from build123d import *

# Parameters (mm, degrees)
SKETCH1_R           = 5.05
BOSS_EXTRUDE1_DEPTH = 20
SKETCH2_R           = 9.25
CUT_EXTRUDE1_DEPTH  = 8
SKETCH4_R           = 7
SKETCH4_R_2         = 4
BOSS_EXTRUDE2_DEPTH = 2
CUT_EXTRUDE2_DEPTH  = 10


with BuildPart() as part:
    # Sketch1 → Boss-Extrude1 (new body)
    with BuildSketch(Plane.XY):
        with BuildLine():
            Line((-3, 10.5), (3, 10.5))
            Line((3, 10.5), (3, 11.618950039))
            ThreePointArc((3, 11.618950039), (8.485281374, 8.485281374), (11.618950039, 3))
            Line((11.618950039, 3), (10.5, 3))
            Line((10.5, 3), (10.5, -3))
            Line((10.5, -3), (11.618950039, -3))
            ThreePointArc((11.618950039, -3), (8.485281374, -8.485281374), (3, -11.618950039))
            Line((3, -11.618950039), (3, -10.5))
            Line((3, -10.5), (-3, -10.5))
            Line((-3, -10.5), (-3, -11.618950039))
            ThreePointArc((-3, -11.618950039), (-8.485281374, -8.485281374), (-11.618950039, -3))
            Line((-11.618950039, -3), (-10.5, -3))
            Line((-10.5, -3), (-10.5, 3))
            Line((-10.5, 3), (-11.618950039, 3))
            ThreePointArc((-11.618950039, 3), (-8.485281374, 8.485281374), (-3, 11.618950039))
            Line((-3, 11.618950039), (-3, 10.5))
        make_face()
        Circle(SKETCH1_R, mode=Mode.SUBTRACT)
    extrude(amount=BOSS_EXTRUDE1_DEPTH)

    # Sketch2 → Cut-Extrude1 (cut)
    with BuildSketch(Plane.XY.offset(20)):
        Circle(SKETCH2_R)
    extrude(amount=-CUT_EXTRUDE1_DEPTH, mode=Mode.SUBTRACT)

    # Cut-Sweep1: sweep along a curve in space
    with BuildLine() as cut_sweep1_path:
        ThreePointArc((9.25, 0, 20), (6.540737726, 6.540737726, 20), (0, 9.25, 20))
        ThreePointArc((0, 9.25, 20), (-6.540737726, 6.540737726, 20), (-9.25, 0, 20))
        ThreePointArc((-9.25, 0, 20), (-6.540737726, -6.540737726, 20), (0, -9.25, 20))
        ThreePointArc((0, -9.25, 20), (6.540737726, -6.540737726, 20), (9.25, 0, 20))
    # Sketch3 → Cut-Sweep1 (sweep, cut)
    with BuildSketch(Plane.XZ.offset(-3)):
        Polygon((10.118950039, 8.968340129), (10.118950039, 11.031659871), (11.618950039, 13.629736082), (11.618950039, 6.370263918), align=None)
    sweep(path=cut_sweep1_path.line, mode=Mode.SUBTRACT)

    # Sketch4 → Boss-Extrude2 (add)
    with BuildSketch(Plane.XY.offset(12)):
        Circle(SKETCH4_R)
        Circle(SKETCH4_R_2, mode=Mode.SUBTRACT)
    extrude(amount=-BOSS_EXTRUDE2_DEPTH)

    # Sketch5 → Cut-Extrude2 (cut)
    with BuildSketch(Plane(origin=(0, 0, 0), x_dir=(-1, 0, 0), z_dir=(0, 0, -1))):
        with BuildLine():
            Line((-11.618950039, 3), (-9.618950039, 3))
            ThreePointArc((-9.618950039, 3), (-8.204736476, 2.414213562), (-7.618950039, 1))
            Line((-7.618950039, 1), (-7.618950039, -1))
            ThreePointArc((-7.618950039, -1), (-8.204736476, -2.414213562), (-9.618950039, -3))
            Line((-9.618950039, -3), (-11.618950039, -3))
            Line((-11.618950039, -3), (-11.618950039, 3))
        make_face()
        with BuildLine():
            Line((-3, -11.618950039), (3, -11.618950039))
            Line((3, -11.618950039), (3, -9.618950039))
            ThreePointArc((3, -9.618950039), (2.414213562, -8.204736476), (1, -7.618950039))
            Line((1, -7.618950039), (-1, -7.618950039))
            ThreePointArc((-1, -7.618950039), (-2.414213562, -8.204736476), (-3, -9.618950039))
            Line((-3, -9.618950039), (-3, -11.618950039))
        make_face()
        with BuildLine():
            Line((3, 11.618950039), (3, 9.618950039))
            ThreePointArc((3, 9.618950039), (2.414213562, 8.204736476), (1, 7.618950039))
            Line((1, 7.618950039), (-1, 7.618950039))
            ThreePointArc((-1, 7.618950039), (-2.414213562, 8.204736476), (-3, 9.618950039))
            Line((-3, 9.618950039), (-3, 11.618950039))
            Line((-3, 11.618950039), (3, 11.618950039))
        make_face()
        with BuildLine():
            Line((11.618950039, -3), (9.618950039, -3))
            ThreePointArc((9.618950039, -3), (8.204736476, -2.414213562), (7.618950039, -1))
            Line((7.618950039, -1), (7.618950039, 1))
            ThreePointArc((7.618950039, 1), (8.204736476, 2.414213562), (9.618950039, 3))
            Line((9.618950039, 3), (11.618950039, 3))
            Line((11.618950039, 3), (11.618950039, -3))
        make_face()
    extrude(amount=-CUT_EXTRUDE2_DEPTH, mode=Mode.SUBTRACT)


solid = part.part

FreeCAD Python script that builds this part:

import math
import FreeCAD as App
import Part
import Sketcher
Q = App.Units.Quantity

doc = App.newDocument("Part")
body = doc.addObject("PartDesign::Body", "Body")

sketch1 = doc.addObject("Sketcher::SketchObject", "Sketch")
body.addObject(sketch1)
sketch1.AttachmentSupport = (doc.XY_Plane, [""])
sketch1.MapMode = "FlatFace"
sketch1.addGeometry(Part.LineSegment(App.Vector(3, 10.5, 0), App.Vector(-3, 10.5, 0)), False)
sketch1.addGeometry(Part.LineSegment(App.Vector(-3, 10.5, 0), App.Vector(-3, 11.6, 0)), False)
sketch1.addGeometry(Part.ArcOfCircle(Part.Circle(App.Vector(0, 0, 0), App.Vector(0, 0, 1), 12), math.radians(104), math.radians(166)), False)
sketch1.addGeometry(Part.LineSegment(App.Vector(-11.6, 3, 0), App.Vector(-10.5, 3, 0)), False)
sketch1.addGeometry(Part.LineSegment(App.Vector(-10.5, 3, 0), App.Vector(-10.5, -3, 0)), False)
sketch1.addGeometry(Part.LineSegment(App.Vector(-10.5, -3, 0), App.Vector(-11.6, -3, 0)), False)
sketch1.addGeometry(Part.ArcOfCircle(Part.Circle(App.Vector(0, 0, 0), App.Vector(0, 0, 1), 12), math.radians(-166), math.radians(-104)), False)
sketch1.addGeometry(Part.LineSegment(App.Vector(-3, -11.6, 0), App.Vector(-3, -10.5, 0)), False)
sketch1.addGeometry(Part.LineSegment(App.Vector(-3, -10.5, 0), App.Vector(3, -10.5, 0)), False)
sketch1.addGeometry(Part.LineSegment(App.Vector(3, -10.5, 0), App.Vector(3, -11.6, 0)), False)
sketch1.addGeometry(Part.ArcOfCircle(Part.Circle(App.Vector(0, 0, 0), App.Vector(0, 0, 1), 12), math.radians(-76), math.radians(-14)), False)
sketch1.addGeometry(Part.LineSegment(App.Vector(11.6, -3, 0), App.Vector(10.5, -3, 0)), False)
sketch1.addGeometry(Part.LineSegment(App.Vector(10.5, -3, 0), App.Vector(10.5, 3, 0)), False)
sketch1.addGeometry(Part.LineSegment(App.Vector(10.5, 3, 0), App.Vector(11.6, 3, 0)), False)
sketch1.addGeometry(Part.ArcOfCircle(Part.Circle(App.Vector(0, 0, 0), App.Vector(0, 0, 1), 12), math.radians(14), math.radians(76)), False)
sketch1.addGeometry(Part.LineSegment(App.Vector(3, 11.6, 0), App.Vector(3, 10.5, 0)), False)
sketch1.addGeometry(Part.Circle(App.Vector(0, 0, 0), App.Vector(0, 0, 1), 5), False)
sketch1.addConstraint(Sketcher.Constraint("Coincident", 0, 2, 1, 1))
sketch1.addConstraint(Sketcher.Constraint("Coincident", 1, 2, 2, 1))
sketch1.addConstraint(Sketcher.Constraint("Coincident", 2, 2, 3, 1))
sketch1.addConstraint(Sketcher.Constraint("Coincident", 3, 2, 4, 1))
sketch1.addConstraint(Sketcher.Constraint("Coincident", 4, 2, 5, 1))
sketch1.addConstraint(Sketcher.Constraint("Coincident", 5, 2, 6, 1))
sketch1.addConstraint(Sketcher.Constraint("Coincident", 6, 2, 7, 1))
sketch1.addConstraint(Sketcher.Constraint("Coincident", 7, 2, 8, 1))
sketch1.addConstraint(Sketcher.Constraint("Coincident", 8, 2, 9, 1))
sketch1.addConstraint(Sketcher.Constraint("Coincident", 9, 2, 10, 1))
sketch1.addConstraint(Sketcher.Constraint("Coincident", 10, 2, 11, 1))
sketch1.addConstraint(Sketcher.Constraint("Coincident", 11, 2, 12, 1))
sketch1.addConstraint(Sketcher.Constraint("Coincident", 12, 2, 13, 1))
sketch1.addConstraint(Sketcher.Constraint("Coincident", 13, 2, 14, 1))
sketch1.addConstraint(Sketcher.Constraint("Coincident", 14, 2, 15, 1))
sketch1.addConstraint(Sketcher.Constraint("Coincident", 15, 2, 0, 1))
sketch1.addConstraint(Sketcher.Constraint("Horizontal", 0))
sketch1.addConstraint(Sketcher.Constraint("Vertical", 1))
sketch1.addConstraint(Sketcher.Constraint("Horizontal", 3))
sketch1.addConstraint(Sketcher.Constraint("Vertical", 4))
sketch1.addConstraint(Sketcher.Constraint("Horizontal", 5))
sketch1.addConstraint(Sketcher.Constraint("Vertical", 7))
sketch1.addConstraint(Sketcher.Constraint("Horizontal", 8))
sketch1.addConstraint(Sketcher.Constraint("Vertical", 9))
sketch1.addConstraint(Sketcher.Constraint("Horizontal", 11))
sketch1.addConstraint(Sketcher.Constraint("Vertical", 12))
sketch1.addConstraint(Sketcher.Constraint("Horizontal", 13))
sketch1.addConstraint(Sketcher.Constraint("Vertical", 15))
sketch1.addConstraint(Sketcher.Constraint("Coincident", 2, 3, -1, 1))
sketch1.addConstraint(Sketcher.Constraint("Coincident", 6, 3, -1, 1))
sketch1.addConstraint(Sketcher.Constraint("Coincident", 10, 3, -1, 1))
sketch1.addConstraint(Sketcher.Constraint("Coincident", 14, 3, -1, 1))
sketch1.addConstraint(Sketcher.Constraint("Coincident", 16, 3, -1, 1))
sketch1.addConstraint(Sketcher.Constraint("Equal", 2, 6))
sketch1.addConstraint(Sketcher.Constraint("Equal", 6, 10))
sketch1.addConstraint(Sketcher.Constraint("Equal", 10, 14))
sketch1.addConstraint(Sketcher.Constraint("Symmetric", 0, 2, 8, 2, -1, 1))
sketch1.addConstraint(Sketcher.Constraint("Symmetric", 3, 2, 11, 2, -1, 1))
sketch1.addConstraint(Sketcher.Constraint("Horizontal", 6, 2, 9, 2))
sketch1.addConstraint(Sketcher.Constraint("Horizontal", 5, 2, 10, 2))
sketch1.addConstraint(Sketcher.Constraint("Horizontal", 3, 2, 12, 2))
sketch1.addConstraint(Sketcher.Constraint("Horizontal", 1, 2, 14, 2))
sketch1.addConstraint(Sketcher.Constraint("Equal", 13, 1))
sketch1.addConstraint(Sketcher.Constraint("Equal", 8, 4))
sketch1.addConstraint(Sketcher.Constraint("Radius", 2, Q("12 mm")))
sketch1.addConstraint(Sketcher.Constraint("Diameter", 16, Q("10.1 mm")))
sketch1.addConstraint(Sketcher.Constraint("DistanceX", 0, 2, 0, 1, Q("6 mm")))
sketch1.addConstraint(Sketcher.Constraint("DistanceY", -1, 1, 0, 2, Q("10.5 mm")))
pad1 = doc.addObject("PartDesign::Pad", "Pad")
body.addObject(pad1)
pad1.Profile = sketch1
pad1.Length = 20

sketch2 = doc.addObject("Sketcher::SketchObject", "Sketch001")
body.addObject(sketch2)
sketch2.AttachmentSupport = (doc.XY_Plane, [""])
sketch2.MapMode = "FlatFace"
sketch2.AttachmentOffset = App.Placement(App.Vector(0, 0, 20), App.Rotation())
sketch2.addGeometry(Part.Circle(App.Vector(0, 0, 0), App.Vector(0, 0, 1), 9), False)
sketch2.addConstraint(Sketcher.Constraint("Coincident", 0, 3, -1, 1))
sketch2.addConstraint(Sketcher.Constraint("Diameter", 0, Q("18.5 mm")))
pocket1 = doc.addObject("PartDesign::Pocket", "Pocket")
body.addObject(pocket1)
pocket1.Profile = sketch2
pocket1.Length = 8

sketch3 = doc.addObject("Sketcher::SketchObject", "Sketch002")
body.addObject(sketch3)
sketch3.AttachmentSupport = (doc.XZ_Plane, [""])
sketch3.MapMode = "FlatFace"
sketch3.AttachmentOffset = App.Placement(App.Vector(0, 0, -3), App.Rotation())
sketch3.addGeometry(Part.LineSegment(App.Vector(10.1, 11, 0), App.Vector(10.1, 9, 0)), False)
sketch3.addGeometry(Part.LineSegment(App.Vector(10.1, 9, 0), App.Vector(11.6, 6.4, 0)), False)
sketch3.addGeometry(Part.LineSegment(App.Vector(11.6, 6.4, 0), App.Vector(11.6, 13.6, 0)), False)
sketch3.addGeometry(Part.LineSegment(App.Vector(11.6, 13.6, 0), App.Vector(10.1, 11, 0)), False)
sketch3.addConstraint(Sketcher.Constraint("Coincident", 0, 2, 1, 1))
sketch3.addConstraint(Sketcher.Constraint("Coincident", 1, 2, 2, 1))
sketch3.addConstraint(Sketcher.Constraint("Coincident", 2, 2, 3, 1))
sketch3.addConstraint(Sketcher.Constraint("Coincident", 3, 2, 0, 1))
sketch3.addConstraint(Sketcher.Constraint("Vertical", 0))
sketch3.addConstraint(Sketcher.Constraint("Vertical", 2))
sketch3.addConstraint(Sketcher.Constraint("Equal", 1, 3))
sketch3.addConstraint(Sketcher.Constraint("Angle", 1, Q("-60 deg")))
sketch3.addConstraint(Sketcher.Constraint("Distance", 1, Q("3 mm")))
sketch3.addConstraint(Sketcher.Constraint("DistanceY", 0, 2, 0, 1, Q("2.06332 mm")))
sketch3.addConstraint(Sketcher.Constraint("DistanceX", -1, 1, 0, 2, Q("10.11895 mm")))
sketch3.addConstraint(Sketcher.Constraint("DistanceY", -1, 1, 0, 2, Q("8.96834 mm")))

sketch4 = doc.addObject("Sketcher::SketchObject", "Sketch003")
body.addObject(sketch4)
sketch4.AttachmentSupport = (doc.XY_Plane, [""])
sketch4.MapMode = "FlatFace"
sketch4.AttachmentOffset = App.Placement(App.Vector(0, 0, 20), App.Rotation())
sketch4.addGeometry(Part.ArcOfCircle(Part.Circle(App.Vector(0, 0, 0), App.Vector(0, 0, 1), 9), math.radians(0), math.radians(90)), False)
sketch4.addGeometry(Part.ArcOfCircle(Part.Circle(App.Vector(0, 0, 0), App.Vector(0, 0, 1), 9), math.radians(90), math.radians(180)), False)
sketch4.addGeometry(Part.ArcOfCircle(Part.Circle(App.Vector(0, 0, 0), App.Vector(0, 0, 1), 9), math.radians(180), math.radians(270)), False)
sketch4.addGeometry(Part.ArcOfCircle(Part.Circle(App.Vector(0, 0, 0), App.Vector(0, 0, 1), 9), math.radians(-90), math.radians(0)), False)
sketch4.addConstraint(Sketcher.Constraint("Tangent", 0, 2, 1, 1))
sketch4.addConstraint(Sketcher.Constraint("Tangent", 1, 2, 2, 1))
sketch4.addConstraint(Sketcher.Constraint("Tangent", 2, 2, 3, 1))
sketch4.addConstraint(Sketcher.Constraint("Tangent", 3, 2, 0, 1))
sketch4.addConstraint(Sketcher.Constraint("Coincident", 0, 3, -1, 1))
sketch4.addConstraint(Sketcher.Constraint("Equal", 0, 1))
sketch4.addConstraint(Sketcher.Constraint("PointOnObject", 0, 2, -2))
sketch4.addConstraint(Sketcher.Constraint("PointOnObject", 1, 2, -1))
sketch4.addConstraint(Sketcher.Constraint("PointOnObject", 2, 2, -2))
sketch4.addConstraint(Sketcher.Constraint("PointOnObject", 3, 2, -1))
sketch4.addConstraint(Sketcher.Constraint("Radius", 0, Q("9.25 mm")))
doc.recompute()

subtractivepipe = doc.addObject("PartDesign::SubtractivePipe", "SubtractivePipe")
body.addObject(subtractivepipe)
subtractivepipe.Profile = sketch3
subtractivepipe.Spine = (sketch4, ["Edge1", "Edge2", "Edge3", "Edge4"])

sketch5 = doc.addObject("Sketcher::SketchObject", "Sketch004")
body.addObject(sketch5)
sketch5.AttachmentSupport = (doc.XY_Plane, [""])
sketch5.MapMode = "FlatFace"
sketch5.AttachmentOffset = App.Placement(App.Vector(0, 0, 12), App.Rotation())
sketch5.addGeometry(Part.Circle(App.Vector(0, 0, 0), App.Vector(0, 0, 1), 7), False)
sketch5.addGeometry(Part.Circle(App.Vector(0, 0, 0), App.Vector(0, 0, 1), 4), False)
sketch5.addConstraint(Sketcher.Constraint("Coincident", 0, 3, -1, 1))
sketch5.addConstraint(Sketcher.Constraint("Coincident", 1, 3, -1, 1))
sketch5.addConstraint(Sketcher.Constraint("Diameter", 0, Q("14 mm")))
sketch5.addConstraint(Sketcher.Constraint("Diameter", 1, Q("8 mm")))
pad2 = doc.addObject("PartDesign::Pad", "Pad001")
body.addObject(pad2)
pad2.Profile = sketch5
pad2.Length = 2
pad2.Reversed = True

sketch6 = doc.addObject("Sketcher::SketchObject", "Sketch005")
body.addObject(sketch6)
sketch6.AttachmentSupport = (doc.XY_Plane, [""])
sketch6.MapMode = "FlatFace"
sketch6.addGeometry(Part.LineSegment(App.Vector(9.6, 3, 0), App.Vector(11.6, 3, 0)), False)
sketch6.addGeometry(Part.LineSegment(App.Vector(11.6, 3, 0), App.Vector(11.6, -3, 0)), False)
sketch6.addGeometry(Part.LineSegment(App.Vector(11.6, -3, 0), App.Vector(9.6, -3, 0)), False)
sketch6.addGeometry(Part.ArcOfCircle(Part.Circle(App.Vector(9.6, -1, 0), App.Vector(0, 0, 1), 2), math.radians(180), math.radians(270)), False)
sketch6.addGeometry(Part.LineSegment(App.Vector(7.6, -1, 0), App.Vector(7.6, 1, 0)), False)
sketch6.addGeometry(Part.ArcOfCircle(Part.Circle(App.Vector(9.6, 1, 0), App.Vector(0, 0, 1), 2), math.radians(90), math.radians(180)), False)
sketch6.addGeometry(Part.LineSegment(App.Vector(3, -11.6, 0), App.Vector(-3, -11.6, 0)), False)
sketch6.addGeometry(Part.LineSegment(App.Vector(-3, -11.6, 0), App.Vector(-3, -9.6, 0)), False)
sketch6.addGeometry(Part.ArcOfCircle(Part.Circle(App.Vector(-1, -9.6, 0), App.Vector(0, 0, 1), 2), math.radians(90), math.radians(180)), False)
sketch6.addGeometry(Part.LineSegment(App.Vector(-1, -7.6, 0), App.Vector(1, -7.6, 0)), False)
sketch6.addGeometry(Part.ArcOfCircle(Part.Circle(App.Vector(1, -9.6, 0), App.Vector(0, 0, 1), 2), math.radians(0), math.radians(90)), False)
sketch6.addGeometry(Part.LineSegment(App.Vector(3, -9.6, 0), App.Vector(3, -11.6, 0)), False)
sketch6.addGeometry(Part.LineSegment(App.Vector(-3, 9.6, 0), App.Vector(-3, 11.6, 0)), False)
sketch6.addGeometry(Part.LineSegment(App.Vector(-3, 11.6, 0), App.Vector(3, 11.6, 0)), False)
sketch6.addGeometry(Part.LineSegment(App.Vector(3, 11.6, 0), App.Vector(3, 9.6, 0)), False)
sketch6.addGeometry(Part.ArcOfCircle(Part.Circle(App.Vector(1, 9.6, 0), App.Vector(0, 0, 1), 2), math.radians(-90), math.radians(0)), False)
sketch6.addGeometry(Part.LineSegment(App.Vector(1, 7.6, 0), App.Vector(-1, 7.6, 0)), False)
sketch6.addGeometry(Part.ArcOfCircle(Part.Circle(App.Vector(-1, 9.6, 0), App.Vector(0, 0, 1), 2), math.radians(180), math.radians(270)), False)
sketch6.addGeometry(Part.LineSegment(App.Vector(-9.6, -3, 0), App.Vector(-11.6, -3, 0)), False)
sketch6.addGeometry(Part.LineSegment(App.Vector(-11.6, -3, 0), App.Vector(-11.6, 3, 0)), False)
sketch6.addGeometry(Part.LineSegment(App.Vector(-11.6, 3, 0), App.Vector(-9.6, 3, 0)), False)
sketch6.addGeometry(Part.ArcOfCircle(Part.Circle(App.Vector(-9.6, 1, 0), App.Vector(0, 0, 1), 2), math.radians(0), math.radians(90)), False)
sketch6.addGeometry(Part.LineSegment(App.Vector(-7.6, 1, 0), App.Vector(-7.6, -1, 0)), False)
sketch6.addGeometry(Part.ArcOfCircle(Part.Circle(App.Vector(-9.6, -1, 0), App.Vector(0, 0, 1), 2), math.radians(-90), math.radians(0)), False)
sketch6.addConstraint(Sketcher.Constraint("Coincident", 0, 2, 1, 1))
sketch6.addConstraint(Sketcher.Constraint("Coincident", 1, 2, 2, 1))
sketch6.addConstraint(Sketcher.Constraint("Tangent", 2, 2, 3, 2))
sketch6.addConstraint(Sketcher.Constraint("Tangent", 3, 1, 4, 1))
sketch6.addConstraint(Sketcher.Constraint("Tangent", 4, 2, 5, 2))
sketch6.addConstraint(Sketcher.Constraint("Tangent", 5, 1, 0, 1))
sketch6.addConstraint(Sketcher.Constraint("Coincident", 6, 2, 7, 1))
sketch6.addConstraint(Sketcher.Constraint("Tangent", 7, 2, 8, 2))
sketch6.addConstraint(Sketcher.Constraint("Tangent", 8, 1, 9, 1))
sketch6.addConstraint(Sketcher.Constraint("Tangent", 9, 2, 10, 2))
sketch6.addConstraint(Sketcher.Constraint("Tangent", 10, 1, 11, 1))
sketch6.addConstraint(Sketcher.Constraint("Coincident", 11, 2, 6, 1))
sketch6.addConstraint(Sketcher.Constraint("Coincident", 12, 2, 13, 1))
sketch6.addConstraint(Sketcher.Constraint("Coincident", 13, 2, 14, 1))
sketch6.addConstraint(Sketcher.Constraint("Tangent", 14, 2, 15, 2))
sketch6.addConstraint(Sketcher.Constraint("Tangent", 15, 1, 16, 1))
sketch6.addConstraint(Sketcher.Constraint("Tangent", 16, 2, 17, 2))
sketch6.addConstraint(Sketcher.Constraint("Tangent", 17, 1, 12, 1))
sketch6.addConstraint(Sketcher.Constraint("Coincident", 18, 2, 19, 1))
sketch6.addConstraint(Sketcher.Constraint("Coincident", 19, 2, 20, 1))
sketch6.addConstraint(Sketcher.Constraint("Tangent", 20, 2, 21, 2))
sketch6.addConstraint(Sketcher.Constraint("Tangent", 21, 1, 22, 1))
sketch6.addConstraint(Sketcher.Constraint("Tangent", 22, 2, 23, 2))
sketch6.addConstraint(Sketcher.Constraint("Tangent", 23, 1, 18, 1))
sketch6.addConstraint(Sketcher.Constraint("Horizontal", 0))
sketch6.addConstraint(Sketcher.Constraint("Vertical", 1))
sketch6.addConstraint(Sketcher.Constraint("Horizontal", 2))
sketch6.addConstraint(Sketcher.Constraint("Vertical", 4))
sketch6.addConstraint(Sketcher.Constraint("Horizontal", 6))
sketch6.addConstraint(Sketcher.Constraint("Vertical", 7))
sketch6.addConstraint(Sketcher.Constraint("Horizontal", 9))
sketch6.addConstraint(Sketcher.Constraint("Vertical", 11))
sketch6.addConstraint(Sketcher.Constraint("Vertical", 12))
sketch6.addConstraint(Sketcher.Constraint("Horizontal", 13))
sketch6.addConstraint(Sketcher.Constraint("Vertical", 14))
sketch6.addConstraint(Sketcher.Constraint("Horizontal", 16))
sketch6.addConstraint(Sketcher.Constraint("Horizontal", 18))
sketch6.addConstraint(Sketcher.Constraint("Vertical", 19))
sketch6.addConstraint(Sketcher.Constraint("Horizontal", 20))
sketch6.addConstraint(Sketcher.Constraint("Vertical", 22))
sketch6.addConstraint(Sketcher.Constraint("Equal", 3, 5))
sketch6.addConstraint(Sketcher.Constraint("Equal", 5, 8))
sketch6.addConstraint(Sketcher.Constraint("Equal", 8, 10))
sketch6.addConstraint(Sketcher.Constraint("Equal", 10, 15))
sketch6.addConstraint(Sketcher.Constraint("Equal", 15, 17))
sketch6.addConstraint(Sketcher.Constraint("Equal", 17, 21))
sketch6.addConstraint(Sketcher.Constraint("Equal", 21, 23))
sketch6.addConstraint(Sketcher.Constraint("Symmetric", 8, 3, 15, 3, -1, 1))
sketch6.addConstraint(Sketcher.Constraint("Symmetric", 3, 3, 21, 3, -1, 1))
sketch6.addConstraint(Sketcher.Constraint("Symmetric", 11, 2, 12, 2, -1, 1))
sketch6.addConstraint(Sketcher.Constraint("Symmetric", 0, 2, 18, 2, -1, 1))
sketch6.addConstraint(Sketcher.Constraint("Horizontal", 5, 3, 21, 3))
sketch6.addConstraint(Sketcher.Constraint("Vertical", 10, 3, 15, 3))
sketch6.addConstraint(Sketcher.Constraint("Equal", 2, 9))
sketch6.addConstraint(Sketcher.Constraint("Equal", 13, 1))
sketch6.addConstraint(Sketcher.Constraint("Equal", 4, 7))
sketch6.addConstraint(Sketcher.Constraint("Radius", 3, Q("2 mm")))
sketch6.addConstraint(Sketcher.Constraint("DistanceX", 0, 1, 0, 2, Q("2 mm")))
sketch6.addConstraint(Sketcher.Constraint("DistanceY", 10, 3, 15, 3, Q("19.2379 mm")))
sketch6.addConstraint(Sketcher.Constraint("DistanceX", 21, 3, 5, 3, Q("19.2379 mm")))
pocket2 = doc.addObject("PartDesign::Pocket", "Pocket001")
body.addObject(pocket2)
pocket2.Profile = sketch6
pocket2.Length = 10
pocket2.Reversed = True

doc.recompute()
